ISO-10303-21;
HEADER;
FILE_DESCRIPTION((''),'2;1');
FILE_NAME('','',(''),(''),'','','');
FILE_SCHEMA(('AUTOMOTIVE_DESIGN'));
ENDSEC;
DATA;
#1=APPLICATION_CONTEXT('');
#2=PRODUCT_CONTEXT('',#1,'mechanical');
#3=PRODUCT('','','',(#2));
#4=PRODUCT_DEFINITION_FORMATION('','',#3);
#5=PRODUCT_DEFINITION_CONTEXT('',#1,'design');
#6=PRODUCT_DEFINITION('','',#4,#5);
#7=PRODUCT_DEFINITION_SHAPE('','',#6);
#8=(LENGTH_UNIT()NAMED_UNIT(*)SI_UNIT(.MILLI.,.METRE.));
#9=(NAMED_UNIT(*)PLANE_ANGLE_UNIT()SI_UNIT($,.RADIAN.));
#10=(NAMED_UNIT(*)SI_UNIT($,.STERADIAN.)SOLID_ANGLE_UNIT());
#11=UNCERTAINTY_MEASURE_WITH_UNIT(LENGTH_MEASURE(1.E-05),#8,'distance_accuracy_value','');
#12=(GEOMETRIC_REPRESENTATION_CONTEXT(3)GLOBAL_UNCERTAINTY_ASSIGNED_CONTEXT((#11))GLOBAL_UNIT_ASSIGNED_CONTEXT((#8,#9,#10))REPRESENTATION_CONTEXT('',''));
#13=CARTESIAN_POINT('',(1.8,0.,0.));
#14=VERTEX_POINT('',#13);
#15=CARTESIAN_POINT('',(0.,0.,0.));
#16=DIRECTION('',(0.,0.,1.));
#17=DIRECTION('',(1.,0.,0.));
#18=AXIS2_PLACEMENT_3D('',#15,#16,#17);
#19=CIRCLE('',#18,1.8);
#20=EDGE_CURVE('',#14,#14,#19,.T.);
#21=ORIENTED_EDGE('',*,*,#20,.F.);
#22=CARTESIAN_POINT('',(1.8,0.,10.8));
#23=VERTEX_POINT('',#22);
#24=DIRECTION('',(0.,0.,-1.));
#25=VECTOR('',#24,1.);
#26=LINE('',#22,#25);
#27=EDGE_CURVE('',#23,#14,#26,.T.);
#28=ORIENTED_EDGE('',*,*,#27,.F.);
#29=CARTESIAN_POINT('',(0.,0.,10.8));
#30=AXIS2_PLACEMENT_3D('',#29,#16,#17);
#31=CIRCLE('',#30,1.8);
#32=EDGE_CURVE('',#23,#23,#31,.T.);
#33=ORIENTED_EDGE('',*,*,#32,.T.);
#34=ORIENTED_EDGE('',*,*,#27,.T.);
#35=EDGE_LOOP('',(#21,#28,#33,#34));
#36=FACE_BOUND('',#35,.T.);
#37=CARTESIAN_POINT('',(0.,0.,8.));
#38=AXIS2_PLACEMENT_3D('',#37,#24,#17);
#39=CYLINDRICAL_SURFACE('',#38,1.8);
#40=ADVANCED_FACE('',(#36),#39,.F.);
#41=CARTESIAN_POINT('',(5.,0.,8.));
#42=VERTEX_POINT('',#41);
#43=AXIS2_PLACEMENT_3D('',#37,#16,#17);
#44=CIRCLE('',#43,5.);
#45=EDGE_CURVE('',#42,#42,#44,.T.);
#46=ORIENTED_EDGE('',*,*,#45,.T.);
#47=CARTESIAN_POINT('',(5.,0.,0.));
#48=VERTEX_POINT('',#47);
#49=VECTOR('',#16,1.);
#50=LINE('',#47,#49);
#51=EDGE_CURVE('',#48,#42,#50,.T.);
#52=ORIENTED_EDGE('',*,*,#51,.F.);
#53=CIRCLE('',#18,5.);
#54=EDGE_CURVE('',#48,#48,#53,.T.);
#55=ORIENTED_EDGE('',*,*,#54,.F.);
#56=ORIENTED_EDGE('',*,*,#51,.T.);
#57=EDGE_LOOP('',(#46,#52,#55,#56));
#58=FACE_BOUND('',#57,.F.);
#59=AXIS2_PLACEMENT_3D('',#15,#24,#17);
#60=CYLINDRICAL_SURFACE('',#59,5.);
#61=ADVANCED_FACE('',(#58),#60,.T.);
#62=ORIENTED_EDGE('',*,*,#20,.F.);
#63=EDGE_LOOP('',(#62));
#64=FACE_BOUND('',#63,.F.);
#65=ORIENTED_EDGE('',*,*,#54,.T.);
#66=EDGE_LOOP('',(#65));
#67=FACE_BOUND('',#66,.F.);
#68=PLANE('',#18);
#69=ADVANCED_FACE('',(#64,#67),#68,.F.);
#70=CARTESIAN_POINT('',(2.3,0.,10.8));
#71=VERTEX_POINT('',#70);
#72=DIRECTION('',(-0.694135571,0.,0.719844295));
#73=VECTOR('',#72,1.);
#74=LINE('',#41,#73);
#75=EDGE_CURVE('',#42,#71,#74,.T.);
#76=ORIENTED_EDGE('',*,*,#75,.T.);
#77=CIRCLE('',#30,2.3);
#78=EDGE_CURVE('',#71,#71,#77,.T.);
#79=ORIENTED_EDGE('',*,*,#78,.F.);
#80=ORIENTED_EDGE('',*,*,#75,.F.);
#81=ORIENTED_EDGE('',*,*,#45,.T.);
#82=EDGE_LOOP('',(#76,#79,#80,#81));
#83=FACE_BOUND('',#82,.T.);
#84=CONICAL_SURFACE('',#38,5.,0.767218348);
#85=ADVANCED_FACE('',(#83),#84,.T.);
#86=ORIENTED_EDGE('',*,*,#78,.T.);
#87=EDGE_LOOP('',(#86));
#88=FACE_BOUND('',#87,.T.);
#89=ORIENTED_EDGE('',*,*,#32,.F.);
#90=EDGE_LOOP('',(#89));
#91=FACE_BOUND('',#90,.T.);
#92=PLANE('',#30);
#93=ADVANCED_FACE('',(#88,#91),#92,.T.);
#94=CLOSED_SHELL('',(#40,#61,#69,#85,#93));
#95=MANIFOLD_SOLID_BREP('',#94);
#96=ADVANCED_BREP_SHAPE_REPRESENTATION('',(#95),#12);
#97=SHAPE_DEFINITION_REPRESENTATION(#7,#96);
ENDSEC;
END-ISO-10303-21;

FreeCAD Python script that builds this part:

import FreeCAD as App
import Part
import Sketcher

V = App.Vector
Q = App.Units.Quantity

doc = App.newDocument("Part")
body = doc.addObject("PartDesign::Body", "Body")

# Sketch on XY plane
sketch1 = body.newObject("Sketcher::SketchObject", "Sketch")
sketch1.AttachmentSupport = (doc.getObject("XY_Plane"), [""])
sketch1.MapMode = "FlatFace"
sketch1.addGeometry(Part.Circle(V(0, 0, 0), V(0, 0, 1), 1.8), False)
sketch1.addConstraint([
    Sketcher.Constraint("Coincident", 0, 3, -1, 1),
    Sketcher.Constraint("Diameter", 0, Q("3.6 mm")),
])
pad1 = body.newObject("PartDesign::Pad", "Pad")
pad1.Profile = sketch1
pad1.Length = 2.8
body2 = doc.addObject("PartDesign::Body", "Body001")

# Sketch on XZ plane
sketch2 = body2.newObject("Sketcher::SketchObject", "Sketch001")
sketch2.AttachmentSupport = (doc.getObject("XZ_Plane001"), [""])
sketch2.MapMode = "FlatFace"
sketch2.addGeometry([
    Part.LineSegment(V(0, 0, 0), V(5, 0, 0)),
    Part.LineSegment(V(5, 0, 0), V(2.3, 2.8, 0)),
    Part.LineSegment(V(2.3, 2.8, 0), V(0, 2.8, 0)),
    Part.LineSegment(V(0, 2.8, 0), V(0, 0, 0)),
], False)
sketch2.addConstraint([
    Sketcher.Constraint("Coincident", 0, 2, 1, 1),
    Sketcher.Constraint("Coincident", 1, 2, 2, 1),
    Sketcher.Constraint("Coincident", 2, 2, 3, 1),
    Sketcher.Constraint("Coincident", 3, 2, 0, 1),
    Sketcher.Constraint("Horizontal", 0),
    Sketcher.Constraint("Horizontal", 2),
    Sketcher.Constraint("Vertical", 3),
    Sketcher.Constraint("Coincident", 3, 2, -1, 1),
    Sketcher.Constraint("DistanceX", 0, 1, 0, 2, Q("5 mm")),
    Sketcher.Constraint("DistanceX", 2, 2, 2, 1, Q("2.3 mm")),
    Sketcher.Constraint("DistanceY", 3, 2, 3, 1, Q("2.8 mm")),
])
revolution = body2.newObject("PartDesign::Revolution", "Revolution")
revolution.Profile = sketch2
revolution.ReferenceAxis = (sketch2, ["V_Axis"])
revolution.Angle = 360
doc.recompute()

boolean = body2.newObject("PartDesign::Boolean", "Boolean")
boolean.Type = "Cut"
boolean.addObjects([body])
body3 = doc.addObject("PartDesign::Body", "Body002")
doc.recompute()

body2.Placement = App.Placement(V(0, 0, 8), App.Rotation(V(0, 0, 1), 0))
boolean2 = body3.newObject("PartDesign::Boolean", "Boolean001")
boolean2.Type = "Fuse"
boolean2.addObjects([body2])
body4 = doc.addObject("PartDesign::Body", "Body003")

# Sketch on XY plane
sketch3 = body4.newObject("Sketcher::SketchObject", "Sketch002")
sketch3.AttachmentSupport = (doc.getObject("XY_Plane003"), [""])
sketch3.MapMode = "FlatFace"
sketch3.addGeometry([
    Part.Circle(V(0, 0, 0), V(0, 0, 1), 5),
    Part.Circle(V(0, 0, 0), V(0, 0, 1), 1.8),
], False)
sketch3.addConstraint([
    Sketcher.Constraint("Coincident", 0, 3, -1, 1),
    Sketcher.Constraint("Coincident", 1, 3, -1, 1),
    Sketcher.Constraint("Diameter", 0, Q("10 mm")),
    Sketcher.Constraint("Diameter", 1, Q("3.6 mm")),
])
pad2 = body4.newObject("PartDesign::Pad", "Pad001")
pad2.Profile = sketch3
pad2.Length = 8
doc.recompute()

boolean3 = body4.newObject("PartDesign::Boolean", "Boolean002")
boolean3.Type = "Fuse"
boolean3.addObjects([body3])

doc.recompute()
